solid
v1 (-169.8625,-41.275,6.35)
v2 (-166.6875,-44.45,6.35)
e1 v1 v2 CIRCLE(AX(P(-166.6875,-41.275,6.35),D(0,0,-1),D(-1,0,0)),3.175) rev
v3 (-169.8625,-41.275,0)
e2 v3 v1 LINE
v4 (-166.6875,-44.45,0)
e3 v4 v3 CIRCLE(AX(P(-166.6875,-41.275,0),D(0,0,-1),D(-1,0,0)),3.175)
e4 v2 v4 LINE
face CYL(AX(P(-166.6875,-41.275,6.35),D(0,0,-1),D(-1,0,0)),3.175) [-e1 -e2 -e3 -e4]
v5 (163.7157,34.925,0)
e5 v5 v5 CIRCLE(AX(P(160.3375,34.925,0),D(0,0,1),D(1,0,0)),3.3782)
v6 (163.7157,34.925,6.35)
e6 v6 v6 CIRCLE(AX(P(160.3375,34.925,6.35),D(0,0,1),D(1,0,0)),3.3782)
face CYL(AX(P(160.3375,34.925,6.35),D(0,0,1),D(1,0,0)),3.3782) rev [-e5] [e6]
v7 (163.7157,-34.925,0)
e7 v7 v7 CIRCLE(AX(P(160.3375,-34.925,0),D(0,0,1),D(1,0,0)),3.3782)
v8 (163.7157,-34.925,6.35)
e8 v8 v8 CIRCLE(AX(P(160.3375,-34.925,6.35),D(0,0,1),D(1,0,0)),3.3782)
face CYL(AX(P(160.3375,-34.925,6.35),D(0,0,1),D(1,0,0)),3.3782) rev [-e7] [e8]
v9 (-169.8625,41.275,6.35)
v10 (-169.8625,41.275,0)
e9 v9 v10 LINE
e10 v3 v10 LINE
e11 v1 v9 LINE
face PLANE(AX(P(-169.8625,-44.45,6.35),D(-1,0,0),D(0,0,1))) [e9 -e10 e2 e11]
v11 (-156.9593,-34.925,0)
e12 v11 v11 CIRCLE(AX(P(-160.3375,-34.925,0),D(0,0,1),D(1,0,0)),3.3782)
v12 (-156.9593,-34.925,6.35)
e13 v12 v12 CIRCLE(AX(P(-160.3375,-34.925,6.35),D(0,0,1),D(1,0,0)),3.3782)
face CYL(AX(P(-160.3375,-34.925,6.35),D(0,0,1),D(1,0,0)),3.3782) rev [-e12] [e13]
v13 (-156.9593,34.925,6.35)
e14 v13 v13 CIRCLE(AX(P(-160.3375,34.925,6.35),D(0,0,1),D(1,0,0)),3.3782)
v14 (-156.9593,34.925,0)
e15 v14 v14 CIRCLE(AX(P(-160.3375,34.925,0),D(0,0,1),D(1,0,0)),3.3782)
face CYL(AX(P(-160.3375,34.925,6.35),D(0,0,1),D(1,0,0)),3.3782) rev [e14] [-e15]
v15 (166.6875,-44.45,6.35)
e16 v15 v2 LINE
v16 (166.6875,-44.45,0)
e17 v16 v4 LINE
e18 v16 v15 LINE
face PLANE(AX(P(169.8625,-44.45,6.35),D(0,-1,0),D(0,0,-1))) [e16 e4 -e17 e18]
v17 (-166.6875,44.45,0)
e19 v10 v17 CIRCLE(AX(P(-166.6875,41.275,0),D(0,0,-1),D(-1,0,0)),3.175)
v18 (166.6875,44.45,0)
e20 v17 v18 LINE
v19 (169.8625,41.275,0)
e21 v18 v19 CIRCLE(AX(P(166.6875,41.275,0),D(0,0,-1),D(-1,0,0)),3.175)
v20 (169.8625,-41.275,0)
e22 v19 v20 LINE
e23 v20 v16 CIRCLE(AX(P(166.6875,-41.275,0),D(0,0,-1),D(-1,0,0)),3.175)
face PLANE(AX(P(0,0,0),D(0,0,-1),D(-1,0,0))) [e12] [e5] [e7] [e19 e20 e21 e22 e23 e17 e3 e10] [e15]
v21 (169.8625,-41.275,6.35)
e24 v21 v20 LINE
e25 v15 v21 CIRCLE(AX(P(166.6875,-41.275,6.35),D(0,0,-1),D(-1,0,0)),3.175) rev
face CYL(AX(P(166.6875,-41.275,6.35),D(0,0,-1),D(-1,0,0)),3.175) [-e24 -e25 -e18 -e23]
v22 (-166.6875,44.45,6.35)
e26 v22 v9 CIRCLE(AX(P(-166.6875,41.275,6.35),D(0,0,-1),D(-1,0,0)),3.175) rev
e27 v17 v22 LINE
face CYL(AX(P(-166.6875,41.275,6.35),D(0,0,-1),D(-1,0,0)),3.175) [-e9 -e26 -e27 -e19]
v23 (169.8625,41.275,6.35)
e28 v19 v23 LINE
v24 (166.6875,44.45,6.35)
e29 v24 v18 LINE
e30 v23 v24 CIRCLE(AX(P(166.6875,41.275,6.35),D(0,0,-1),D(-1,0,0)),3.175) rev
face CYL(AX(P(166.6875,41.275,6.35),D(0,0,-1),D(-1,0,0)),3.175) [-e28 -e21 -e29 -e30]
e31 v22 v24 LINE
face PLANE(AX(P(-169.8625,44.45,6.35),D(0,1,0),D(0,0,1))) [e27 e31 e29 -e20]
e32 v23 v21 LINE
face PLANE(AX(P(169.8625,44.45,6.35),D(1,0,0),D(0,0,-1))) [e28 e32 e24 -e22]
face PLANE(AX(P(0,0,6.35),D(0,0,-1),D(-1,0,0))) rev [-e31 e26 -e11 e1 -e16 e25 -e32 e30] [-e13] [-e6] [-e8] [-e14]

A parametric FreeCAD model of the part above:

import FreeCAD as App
import Part
import Sketcher
Q = App.Units.Quantity


def edges_at(feature, points):
    """Names of the edges that pass closest to the given points."""
    edges = feature.Shape.Edges
    near = lambda p: min(range(len(edges)), key=lambda i: edges[i].distToShape(Part.Vertex(*p))[0])
    return sorted({f"Edge{near(p) + 1}" for p in points})

doc = App.newDocument("Part")
body = doc.addObject("PartDesign::Body", "Body")

sketch1 = body.newObject("Sketcher::SketchObject", "Sketch")
sketch1.AttachmentSupport = (doc.getObject("XY_Plane"), [""])
sketch1.MapMode = "FlatFace"
sketch1.addGeometry([
    Part.LineSegment(App.Vector(169.8625, 44.45, 0), App.Vector(169.8625, -44.45, 0)),
    Part.LineSegment(App.Vector(169.8625, -44.45, 0), App.Vector(-169.8625, -44.45, 0)),
    Part.LineSegment(App.Vector(-169.8625, -44.45, 0), App.Vector(-169.8625, 44.45, 0)),
    Part.LineSegment(App.Vector(-169.8625, 44.45, 0), App.Vector(169.8625, 44.45, 0)),
], False)
sketch1.addConstraint([
    Sketcher.Constraint("Coincident", 0, 2, 1, 1),
    Sketcher.Constraint("Coincident", 1, 2, 2, 1),
    Sketcher.Constraint("Coincident", 2, 2, 3, 1),
    Sketcher.Constraint("Coincident", 3, 2, 0, 1),
    Sketcher.Constraint("Vertical", 0),
    Sketcher.Constraint("Horizontal", 1),
    Sketcher.Constraint("Vertical", 2),
    Sketcher.Constraint("Horizontal", 3),
    Sketcher.Constraint("Symmetric", 0, 2, 2, 2, -1, 1),
    Sketcher.Constraint("DistanceY", 0, 2, 0, 1, Q("3.5 in")),
    Sketcher.Constraint("DistanceX", 1, 2, 1, 1, Q("13.375 in")),
])
pad1 = body.newObject("PartDesign::Pad", "Pad")
pad1.Profile = sketch1
pad1.Length = Q("0.25 in")

sketch2 = body.newObject("Sketcher::SketchObject", "Sketch001")
sketch2.AttachmentSupport = (doc.getObject("XY_Plane"), [""])
sketch2.MapMode = "FlatFace"
sketch2.AttachmentOffset = App.Placement(App.Vector(0, 0, 0.25 * 25.4), App.Rotation())
sketch2.addGeometry([
    Part.Circle(App.Vector(-160.3375, 34.925, 0), App.Vector(0, 0, 1), 3.3782),
    Part.Circle(App.Vector(-160.3375, -34.925, 0), App.Vector(0, 0, 1), 3.3782),
    Part.Circle(App.Vector(160.3375, 34.925, 0), App.Vector(0, 0, 1), 3.3782),
    Part.Circle(App.Vector(160.3375, -34.925, 0), App.Vector(0, 0, 1), 3.3782),
], False)
sketch2.addConstraint([
    Sketcher.Constraint("Equal", 0, 1),
    Sketcher.Constraint("Equal", 1, 2),
    Sketcher.Constraint("Equal", 2, 3),
    Sketcher.Constraint("Symmetric", 1, 3, 2, 3, -1, 1),
    Sketcher.Constraint("Symmetric", 0, 3, 3, 3, -1, 1),
    Sketcher.Constraint("Symmetric", 0, 3, 2, 3, -2),
    Sketcher.Constraint("Diameter", 0, Q("0.266 in")),
    Sketcher.Constraint("DistanceY", 1, 3, 0, 3, Q("2.75 in")),
    Sketcher.Constraint("DistanceX", 0, 3, -1, 1, Q("6.3125 in")),
])
doc.recompute()
hole = body.newObject("PartDesign::Hole", "Hole")
hole.Profile = sketch2
hole.ThreadType = "None"
hole.Diameter = Q("0.266 in")
hole.DepthType = "ThroughAll"
doc.recompute()

fillet = body.newObject("PartDesign::Fillet", "Fillet")
fillet.Base = (hole, edges_at(hole, [
    (169.863, 44.45, 3.175),
    (-169.863, 44.45, 3.175),
    (-169.863, -44.45, 3.175),
    (169.863, -44.45, 3.175),
]))
fillet.Radius = Q("0.125 in")

doc.recompute()
